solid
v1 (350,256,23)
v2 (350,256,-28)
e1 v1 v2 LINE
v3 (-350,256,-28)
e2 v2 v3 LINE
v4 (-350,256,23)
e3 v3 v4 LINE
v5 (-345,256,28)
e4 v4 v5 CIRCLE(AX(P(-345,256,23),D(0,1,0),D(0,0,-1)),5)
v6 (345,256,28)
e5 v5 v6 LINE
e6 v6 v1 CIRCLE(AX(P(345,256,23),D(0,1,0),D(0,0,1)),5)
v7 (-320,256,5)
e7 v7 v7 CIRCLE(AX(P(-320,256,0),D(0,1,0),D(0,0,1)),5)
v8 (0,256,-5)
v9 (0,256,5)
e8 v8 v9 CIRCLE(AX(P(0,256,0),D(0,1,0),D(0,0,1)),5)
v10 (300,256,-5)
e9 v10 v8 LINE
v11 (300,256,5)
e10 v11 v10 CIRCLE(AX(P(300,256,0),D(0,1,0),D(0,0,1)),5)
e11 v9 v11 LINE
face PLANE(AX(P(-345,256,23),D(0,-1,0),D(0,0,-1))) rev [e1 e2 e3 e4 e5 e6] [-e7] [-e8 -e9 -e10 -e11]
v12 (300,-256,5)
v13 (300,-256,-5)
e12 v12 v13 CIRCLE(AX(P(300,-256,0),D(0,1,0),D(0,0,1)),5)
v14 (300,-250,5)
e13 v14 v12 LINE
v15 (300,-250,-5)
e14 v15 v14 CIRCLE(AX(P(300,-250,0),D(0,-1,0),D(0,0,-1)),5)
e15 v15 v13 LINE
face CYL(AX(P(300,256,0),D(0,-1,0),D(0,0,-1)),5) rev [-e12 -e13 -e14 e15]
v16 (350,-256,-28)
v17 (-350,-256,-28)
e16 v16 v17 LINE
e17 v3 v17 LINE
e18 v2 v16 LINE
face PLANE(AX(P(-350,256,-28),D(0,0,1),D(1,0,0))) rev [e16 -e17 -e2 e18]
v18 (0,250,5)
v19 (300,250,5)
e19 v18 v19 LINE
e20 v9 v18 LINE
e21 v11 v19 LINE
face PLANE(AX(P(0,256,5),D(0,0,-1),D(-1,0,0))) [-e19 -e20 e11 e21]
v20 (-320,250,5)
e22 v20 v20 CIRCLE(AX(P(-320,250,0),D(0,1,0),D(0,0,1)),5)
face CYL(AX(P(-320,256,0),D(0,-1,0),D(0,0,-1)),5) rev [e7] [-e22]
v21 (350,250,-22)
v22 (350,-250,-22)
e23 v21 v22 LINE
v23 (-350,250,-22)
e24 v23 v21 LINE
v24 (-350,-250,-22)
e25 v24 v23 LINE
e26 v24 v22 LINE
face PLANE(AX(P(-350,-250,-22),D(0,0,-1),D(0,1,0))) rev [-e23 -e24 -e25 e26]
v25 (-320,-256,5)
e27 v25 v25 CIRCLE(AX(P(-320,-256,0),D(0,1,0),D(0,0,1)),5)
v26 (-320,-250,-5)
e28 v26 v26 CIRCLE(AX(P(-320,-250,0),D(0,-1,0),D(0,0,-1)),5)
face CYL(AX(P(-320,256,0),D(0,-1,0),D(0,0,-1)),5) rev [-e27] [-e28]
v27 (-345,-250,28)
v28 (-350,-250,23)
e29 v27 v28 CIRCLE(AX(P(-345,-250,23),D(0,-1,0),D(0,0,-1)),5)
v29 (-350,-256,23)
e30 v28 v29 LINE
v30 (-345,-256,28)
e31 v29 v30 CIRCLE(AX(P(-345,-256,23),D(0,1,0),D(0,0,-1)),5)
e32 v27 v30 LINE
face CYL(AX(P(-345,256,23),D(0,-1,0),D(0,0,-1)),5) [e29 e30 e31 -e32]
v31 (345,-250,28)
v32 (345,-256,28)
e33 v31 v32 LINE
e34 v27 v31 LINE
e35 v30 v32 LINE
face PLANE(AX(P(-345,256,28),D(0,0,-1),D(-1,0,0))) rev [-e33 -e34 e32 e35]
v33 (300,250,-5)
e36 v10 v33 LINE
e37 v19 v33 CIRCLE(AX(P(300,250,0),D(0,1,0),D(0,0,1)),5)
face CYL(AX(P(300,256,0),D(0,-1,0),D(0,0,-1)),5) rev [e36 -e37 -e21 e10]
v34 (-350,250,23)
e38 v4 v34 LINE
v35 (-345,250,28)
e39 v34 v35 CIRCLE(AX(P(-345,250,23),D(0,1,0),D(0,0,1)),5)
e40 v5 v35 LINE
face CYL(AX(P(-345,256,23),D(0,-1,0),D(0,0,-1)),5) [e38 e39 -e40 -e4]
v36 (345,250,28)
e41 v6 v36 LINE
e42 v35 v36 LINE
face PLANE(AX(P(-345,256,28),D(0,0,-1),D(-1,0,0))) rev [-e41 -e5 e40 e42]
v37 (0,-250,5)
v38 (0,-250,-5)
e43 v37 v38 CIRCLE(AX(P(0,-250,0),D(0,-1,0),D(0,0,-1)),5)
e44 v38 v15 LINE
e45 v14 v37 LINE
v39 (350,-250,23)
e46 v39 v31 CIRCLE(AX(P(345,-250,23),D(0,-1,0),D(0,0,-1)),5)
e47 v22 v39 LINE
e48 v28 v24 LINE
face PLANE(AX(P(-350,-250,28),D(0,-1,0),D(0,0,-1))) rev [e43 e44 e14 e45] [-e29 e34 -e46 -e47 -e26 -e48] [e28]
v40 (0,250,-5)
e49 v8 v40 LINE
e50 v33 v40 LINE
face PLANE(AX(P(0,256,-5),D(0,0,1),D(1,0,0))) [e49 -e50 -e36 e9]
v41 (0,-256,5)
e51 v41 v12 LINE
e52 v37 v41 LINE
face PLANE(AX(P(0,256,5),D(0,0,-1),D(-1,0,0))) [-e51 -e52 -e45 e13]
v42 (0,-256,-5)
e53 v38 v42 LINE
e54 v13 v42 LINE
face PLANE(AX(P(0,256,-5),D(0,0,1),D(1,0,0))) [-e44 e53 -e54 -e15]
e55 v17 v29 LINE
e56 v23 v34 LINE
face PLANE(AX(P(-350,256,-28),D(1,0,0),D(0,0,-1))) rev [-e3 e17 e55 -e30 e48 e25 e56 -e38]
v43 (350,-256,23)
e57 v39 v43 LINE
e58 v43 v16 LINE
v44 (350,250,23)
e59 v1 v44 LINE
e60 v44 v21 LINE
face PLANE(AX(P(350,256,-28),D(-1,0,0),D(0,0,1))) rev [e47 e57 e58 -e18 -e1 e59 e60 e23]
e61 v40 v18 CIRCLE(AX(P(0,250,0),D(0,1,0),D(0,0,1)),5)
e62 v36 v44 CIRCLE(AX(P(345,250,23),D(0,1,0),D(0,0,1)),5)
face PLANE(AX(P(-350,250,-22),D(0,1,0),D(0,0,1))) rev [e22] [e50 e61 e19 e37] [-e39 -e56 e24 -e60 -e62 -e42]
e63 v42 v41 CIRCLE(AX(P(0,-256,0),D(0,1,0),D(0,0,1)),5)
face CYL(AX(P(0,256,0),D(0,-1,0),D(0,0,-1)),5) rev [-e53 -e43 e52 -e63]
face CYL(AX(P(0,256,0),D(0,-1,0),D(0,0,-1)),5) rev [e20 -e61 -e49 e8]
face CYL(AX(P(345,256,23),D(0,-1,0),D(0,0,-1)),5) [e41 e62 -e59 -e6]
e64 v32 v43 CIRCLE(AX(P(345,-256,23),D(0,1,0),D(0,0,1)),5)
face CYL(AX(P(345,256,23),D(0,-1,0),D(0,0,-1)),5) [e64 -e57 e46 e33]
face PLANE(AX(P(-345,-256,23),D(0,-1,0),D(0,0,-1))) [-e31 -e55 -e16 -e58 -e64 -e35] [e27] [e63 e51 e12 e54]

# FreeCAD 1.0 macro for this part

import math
import FreeCAD as App
import Part
import Sketcher
Q = App.Units.Quantity


def add_polygon(sketch, points):
    """Adds a closed chain of lines whose ends are joined by coincident constraints."""
    first, n = sketch.GeometryCount, len(points)
    for a, b in zip(points, points[1:] + points[:1]):
        sketch.addGeometry(Part.LineSegment(App.Vector(*a, 0), App.Vector(*b, 0)), False)
    for i in range(n):
        sketch.addConstraint(Sketcher.Constraint("Coincident", first + i, 2, first + (i + 1) % n, 1))

doc = App.newDocument("Part")
body = doc.addObject("PartDesign::Body", "Body")

# Sketch on XZ plane
sketch1 = doc.addObject("Sketcher::SketchObject", "Sketch")
body.addObject(sketch1)
sketch1.AttachmentSupport = (doc.XZ_Plane, [""])
sketch1.MapMode = "FlatFace"
sketch1.addGeometry([
    Part.LineSegment(App.Vector(350, -28, 0), App.Vector(-350, -28, 0)),  # 0
    Part.LineSegment(App.Vector(-350, -28, 0), App.Vector(-350, 23, 0)),  # 1
    Part.ArcOfCircle(Part.Circle(App.Vector(-345, 23, 0), App.Vector(0, 0, 1), 5), math.radians(90), math.radians(180)),  # 2
    Part.LineSegment(App.Vector(-345, 28, 0), App.Vector(345, 28, 0)),  # 3
    Part.ArcOfCircle(Part.Circle(App.Vector(345, 23, 0), App.Vector(0, 0, 1), 5), math.radians(0), math.radians(90)),  # 4
    Part.LineSegment(App.Vector(350, 23, 0), App.Vector(350, -28, 0)),  # 5
    Part.LineSegment(App.Vector(0, -5, 0), App.Vector(300, -5, 0)),  # 6
    Part.ArcOfCircle(Part.Circle(App.Vector(300, 0, 0), App.Vector(0, 0, 1), 5), math.radians(-90), math.radians(90)),  # 7
    Part.LineSegment(App.Vector(300, 5, 0), App.Vector(0, 5, 0)),  # 8
    Part.ArcOfCircle(Part.Circle(App.Vector(0, 0, 0), App.Vector(0, 0, 1), 5), math.radians(90), math.radians(270)),  # 9
    Part.Circle(App.Vector(-320, 0, 0), App.Vector(0, 0, 1), 5),  # 10
], False)
sketch1.addConstraint([
    Sketcher.Constraint("Coincident", 0, 2, 1, 1),
    Sketcher.Constraint("Tangent", 1, 2, 2, 2),
    Sketcher.Constraint("Tangent", 2, 1, 3, 1),
    Sketcher.Constraint("Tangent", 3, 2, 4, 2),
    Sketcher.Constraint("Tangent", 4, 1, 5, 1),
    Sketcher.Constraint("Coincident", 5, 2, 0, 1),
    Sketcher.Constraint("Tangent", 6, 2, 7, 1),
    Sketcher.Constraint("Tangent", 7, 2, 8, 1),
    Sketcher.Constraint("Tangent", 8, 2, 9, 1),
    Sketcher.Constraint("Tangent", 9, 2, 6, 1),
    Sketcher.Constraint("Horizontal", 0),
    Sketcher.Constraint("Vertical", 1),
    Sketcher.Constraint("Horizontal", 3),
    Sketcher.Constraint("Vertical", 5),
    Sketcher.Constraint("Horizontal", 6),
    Sketcher.Constraint("Horizontal", 8),
    Sketcher.Constraint("Coincident", 9, 3, -1, 1),
    Sketcher.Constraint("Equal", 2, 4),
    Sketcher.Constraint("Equal", 4, 7),
    Sketcher.Constraint("Equal", 9, 10),
    Sketcher.Constraint("PointOnObject", 10, 3, -1),
    Sketcher.Constraint("Diameter", 10, Q("10 mm")),
    Sketcher.Constraint("DistanceX", 0, 2, 0, 1, Q("700 mm")),
    Sketcher.Constraint("DistanceX", 6, 1, 6, 2, Q("300 mm")),
    Sketcher.Constraint("DistanceY", 1, 1, 1, 2, Q("51 mm")),
    Sketcher.Constraint("DistanceX", 2, 3, -1, 1, Q("345 mm")),
    Sketcher.Constraint("DistanceY", -1, 1, 2, 3, Q("23 mm")),
    Sketcher.Constraint("DistanceX", 10, 3, -1, 1, Q("320 mm")),
])
pad1 = doc.addObject("PartDesign::Pad", "Pad")
body.addObject(pad1)
pad1.Profile = sketch1
pad1.Length = 512
pad1.Midplane = True

# Sketch on YZ plane
sketch2 = doc.addObject("Sketcher::SketchObject", "Sketch001")
body.addObject(sketch2)
sketch2.AttachmentSupport = (doc.YZ_Plane, [""])
sketch2.MapMode = "FlatFace"
sketch2.AttachmentOffset = App.Placement(App.Vector(0, 0, 350), App.Rotation())
add_polygon(sketch2, [(250, 28), (-250, 28), (-250, -22), (250, -22)])  # lines 0-3
sketch2.addConstraint([
    Sketcher.Constraint("Horizontal", 0),
    Sketcher.Constraint("Vertical", 1),
    Sketcher.Constraint("Horizontal", 2),
    Sketcher.Constraint("Vertical", 3),
    Sketcher.Constraint("DistanceX", 0, 2, 0, 1, Q("500 mm")),
    Sketcher.Constraint("DistanceY", 1, 2, 1, 1, Q("50 mm")),
    Sketcher.Constraint("DistanceX", 0, 2, -1, 1, Q("250 mm")),
    Sketcher.Constraint("DistanceY", -1, 1, 0, 2, Q("28 mm")),
])
pocket1 = doc.addObject("PartDesign::Pocket", "Pocket")
body.addObject(pocket1)
pocket1.Profile = sketch2
pocket1.Type = "ThroughAll"
pocket1.Midplane = True

doc.recompute()
